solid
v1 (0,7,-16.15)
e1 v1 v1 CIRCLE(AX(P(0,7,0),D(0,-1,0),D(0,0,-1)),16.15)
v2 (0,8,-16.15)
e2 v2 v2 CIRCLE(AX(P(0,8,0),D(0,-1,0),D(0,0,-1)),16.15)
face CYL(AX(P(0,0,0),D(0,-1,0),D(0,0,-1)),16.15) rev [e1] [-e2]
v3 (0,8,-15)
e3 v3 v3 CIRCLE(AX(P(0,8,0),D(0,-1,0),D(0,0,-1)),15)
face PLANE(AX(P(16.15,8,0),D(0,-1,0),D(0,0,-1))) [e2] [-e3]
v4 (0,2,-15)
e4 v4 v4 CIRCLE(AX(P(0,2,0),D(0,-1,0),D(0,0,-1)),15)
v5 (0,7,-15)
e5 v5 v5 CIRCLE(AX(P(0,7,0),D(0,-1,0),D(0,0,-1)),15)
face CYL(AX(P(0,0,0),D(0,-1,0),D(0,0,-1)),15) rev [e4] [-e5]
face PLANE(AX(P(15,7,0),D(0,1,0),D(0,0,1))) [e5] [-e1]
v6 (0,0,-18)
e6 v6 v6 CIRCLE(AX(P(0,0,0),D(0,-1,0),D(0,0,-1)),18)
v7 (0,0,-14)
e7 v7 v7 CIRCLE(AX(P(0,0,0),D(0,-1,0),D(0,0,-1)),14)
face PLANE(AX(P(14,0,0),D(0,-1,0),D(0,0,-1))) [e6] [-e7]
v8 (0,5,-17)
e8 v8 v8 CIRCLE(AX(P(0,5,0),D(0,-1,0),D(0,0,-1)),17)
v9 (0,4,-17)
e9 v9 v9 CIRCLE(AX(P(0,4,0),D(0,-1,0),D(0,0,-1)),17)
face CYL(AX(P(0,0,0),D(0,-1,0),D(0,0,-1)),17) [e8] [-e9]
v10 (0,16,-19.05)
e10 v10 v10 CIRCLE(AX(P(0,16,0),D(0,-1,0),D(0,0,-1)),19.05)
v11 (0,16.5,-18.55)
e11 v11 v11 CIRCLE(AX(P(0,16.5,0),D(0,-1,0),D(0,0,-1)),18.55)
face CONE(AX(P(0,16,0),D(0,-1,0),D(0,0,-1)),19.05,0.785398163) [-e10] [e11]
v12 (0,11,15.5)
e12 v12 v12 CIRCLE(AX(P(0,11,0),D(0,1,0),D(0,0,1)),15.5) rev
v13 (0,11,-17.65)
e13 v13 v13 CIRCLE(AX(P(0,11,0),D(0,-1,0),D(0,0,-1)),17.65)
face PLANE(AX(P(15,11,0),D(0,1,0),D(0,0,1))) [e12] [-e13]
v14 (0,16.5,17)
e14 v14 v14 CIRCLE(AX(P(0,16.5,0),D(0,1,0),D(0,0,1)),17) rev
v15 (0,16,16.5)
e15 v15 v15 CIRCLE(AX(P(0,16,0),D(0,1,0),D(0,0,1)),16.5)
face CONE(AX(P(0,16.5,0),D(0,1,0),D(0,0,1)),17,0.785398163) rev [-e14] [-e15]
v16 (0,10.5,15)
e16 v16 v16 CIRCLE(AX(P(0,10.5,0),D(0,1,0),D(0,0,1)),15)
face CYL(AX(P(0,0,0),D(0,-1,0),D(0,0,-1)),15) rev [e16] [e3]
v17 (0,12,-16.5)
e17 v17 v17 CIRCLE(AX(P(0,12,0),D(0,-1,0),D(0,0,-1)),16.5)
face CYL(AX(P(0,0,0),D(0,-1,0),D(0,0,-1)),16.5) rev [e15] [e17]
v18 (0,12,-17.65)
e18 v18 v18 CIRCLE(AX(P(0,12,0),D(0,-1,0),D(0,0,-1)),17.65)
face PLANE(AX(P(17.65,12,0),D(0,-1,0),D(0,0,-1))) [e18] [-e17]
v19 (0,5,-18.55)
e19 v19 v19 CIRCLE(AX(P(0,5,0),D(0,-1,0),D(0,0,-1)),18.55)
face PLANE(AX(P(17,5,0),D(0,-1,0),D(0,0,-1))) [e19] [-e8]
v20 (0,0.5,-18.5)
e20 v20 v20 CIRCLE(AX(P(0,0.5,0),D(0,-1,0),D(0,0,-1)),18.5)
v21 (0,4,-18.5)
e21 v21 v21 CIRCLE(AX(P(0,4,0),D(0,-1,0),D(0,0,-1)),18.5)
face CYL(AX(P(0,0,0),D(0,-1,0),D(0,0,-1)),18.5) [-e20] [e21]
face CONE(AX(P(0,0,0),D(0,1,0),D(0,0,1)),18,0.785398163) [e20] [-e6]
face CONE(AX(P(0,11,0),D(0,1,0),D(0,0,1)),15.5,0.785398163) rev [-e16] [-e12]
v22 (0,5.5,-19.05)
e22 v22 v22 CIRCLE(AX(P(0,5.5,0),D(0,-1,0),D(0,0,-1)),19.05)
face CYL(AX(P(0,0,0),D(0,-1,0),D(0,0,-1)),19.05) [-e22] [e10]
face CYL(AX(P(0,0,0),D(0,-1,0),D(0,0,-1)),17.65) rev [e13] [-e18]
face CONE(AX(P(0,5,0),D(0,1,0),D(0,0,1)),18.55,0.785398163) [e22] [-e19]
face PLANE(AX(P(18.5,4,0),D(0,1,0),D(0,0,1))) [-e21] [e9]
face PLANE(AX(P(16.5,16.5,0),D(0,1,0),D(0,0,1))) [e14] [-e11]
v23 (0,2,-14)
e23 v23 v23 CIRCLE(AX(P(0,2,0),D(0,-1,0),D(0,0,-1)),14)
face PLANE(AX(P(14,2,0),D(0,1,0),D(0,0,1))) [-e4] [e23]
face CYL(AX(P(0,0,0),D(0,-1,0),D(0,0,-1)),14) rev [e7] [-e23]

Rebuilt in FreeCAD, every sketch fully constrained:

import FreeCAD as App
import Part
import Sketcher
from FreeCAD import Vector


def edges_at(feature, points):
    """Names of the edges that pass closest to the given points."""
    edges = feature.Shape.Edges
    near = lambda p: min(range(len(edges)), key=lambda i: edges[i].distToShape(Part.Vertex(*p))[0])
    return sorted({f"Edge{near(p) + 1}" for p in points})


def add_polygon(sketch, points):
    """Adds a closed chain of lines whose ends are joined by coincident constraints."""
    first, n = sketch.GeometryCount, len(points)
    for a, b in zip(points, points[1:] + points[:1]):
        sketch.addGeometry(Part.LineSegment(App.Vector(*a, 0), App.Vector(*b, 0)), False)
    for i in range(n):
        sketch.addConstraint(Sketcher.Constraint("Coincident", first + i, 2, first + (i + 1) % n, 1))

doc = App.newDocument("Part")
body = doc.addObject("PartDesign::Body", "Body")

# Sketch on XY plane
sketch1 = doc.addObject("Sketcher::SketchObject", "Sketch")
body.addObject(sketch1)
sketch1.AttachmentSupport = (doc.XY_Plane, [""])
sketch1.MapMode = "FlatFace"
add_polygon(sketch1, [(14, 2), (14, 0), (18, 0), (18.5, 0.5), (18.5, 4), (17, 4), (17, 5), (18.6, 5), (19.1, 5.5), (19.1, 16), (18.6, 16.5), (16.5, 16.5), (16.5, 12), (17.6, 12), (17.6, 11), (15, 11), (15, 8), (16.1, 8), (16.1, 7), (15, 7), (15, 2)])  # lines 0-20
sketch1.addConstraint(Sketcher.Constraint("Vertical", 0))
sketch1.addConstraint(Sketcher.Constraint("Horizontal", 1))
sketch1.addConstraint(Sketcher.Constraint("Vertical", 3))
sketch1.addConstraint(Sketcher.Constraint("Horizontal", 4))
sketch1.addConstraint(Sketcher.Constraint("Vertical", 5))
sketch1.addConstraint(Sketcher.Constraint("Horizontal", 6))
sketch1.addConstraint(Sketcher.Constraint("Vertical", 8))
sketch1.addConstraint(Sketcher.Constraint("Horizontal", 10))
sketch1.addConstraint(Sketcher.Constraint("Vertical", 11))
sketch1.addConstraint(Sketcher.Constraint("Horizontal", 12))
sketch1.addConstraint(Sketcher.Constraint("Vertical", 13))
sketch1.addConstraint(Sketcher.Constraint("Horizontal", 14))
sketch1.addConstraint(Sketcher.Constraint("Vertical", 15))
sketch1.addConstraint(Sketcher.Constraint("Horizontal", 16))
sketch1.addConstraint(Sketcher.Constraint("Vertical", 17))
sketch1.addConstraint(Sketcher.Constraint("Horizontal", 18))
sketch1.addConstraint(Sketcher.Constraint("Vertical", 19))
sketch1.addConstraint(Sketcher.Constraint("Horizontal", 20))
sketch1.addConstraint(Sketcher.Constraint("PointOnObject", 0, 2, -1))
sketch1.addConstraint(Sketcher.Constraint("Parallel", 2, 7))
sketch1.addConstraint(Sketcher.Constraint("Perpendicular", 7, 9))
sketch1.addConstraint(Sketcher.Constraint("Vertical", 6, 2, 9, 2))
sketch1.addConstraint(Sketcher.Constraint("Vertical", 15, 2, 18, 2))
sketch1.addConstraint(Sketcher.Constraint("Equal", 12, 16))
sketch1.addConstraint(Sketcher.Constraint("Equal", 20, 5))
sketch1.addConstraint(Sketcher.Constraint("Equal", 5, 13))
sketch1.addConstraint(Sketcher.Constraint("Equal", 13, 17))
sketch1.addConstraint(Sketcher.Constraint("Equal", 2, 7))
sketch1.addConstraint(Sketcher.Constraint("Equal", 7, 9))
sketch1.addConstraint(Sketcher.Constraint("DistanceX", 1, 1, 1, 2, 4.0))
sketch1.addConstraint(Sketcher.Constraint("DistanceX", 20, 2, 20, 1, 1.0))
sketch1.addConstraint(Sketcher.Constraint("DistanceY", 0, 2, 0, 1, 2.0))
sketch1.addConstraint(Sketcher.Constraint("DistanceY", 15, 2, 15, 1, 3.0))
sketch1.addConstraint(Sketcher.Constraint("DistanceY", 19, 2, 19, 1, 5.0))
sketch1.addConstraint(Sketcher.Constraint("DistanceX", 4, 2, 4, 1, 1.5))
sketch1.addConstraint(Sketcher.Constraint("DistanceY", 3, 1, 3, 2, 3.5))
sketch1.addConstraint(Sketcher.Constraint("DistanceY", 8, 1, 8, 2, 10.5))
sketch1.addConstraint(Sketcher.Constraint("DistanceY", 11, 2, 11, 1, 4.5))
sketch1.addConstraint(Sketcher.Constraint("DistanceX", -1, 1, 0, 2, 14.0))
sketch1.addConstraint(Sketcher.Constraint("DistanceX", 6, 1, 6, 2, 1.55))
sketch1.addConstraint(Sketcher.Constraint("DistanceX", 10, 2, 10, 1, 2.05))
sketch1.addConstraint(Sketcher.Constraint("DistanceX", 12, 1, 12, 2, 1.15))
revolution = doc.addObject("PartDesign::Revolution", "Revolution")
body.addObject(revolution)
revolution.Profile = sketch1
revolution.ReferenceAxis = (sketch1, ["V_Axis"])
revolution.Angle = 360
doc.recompute()

chamfer = doc.addObject("PartDesign::Chamfer", "Chamfer")
body.addObject(chamfer)
chamfer.Base = (revolution, edges_at(revolution, [(0, 11, 15), (0, 16.5, 16.5)]))
chamfer.Size = 0.5

doc.recompute()
